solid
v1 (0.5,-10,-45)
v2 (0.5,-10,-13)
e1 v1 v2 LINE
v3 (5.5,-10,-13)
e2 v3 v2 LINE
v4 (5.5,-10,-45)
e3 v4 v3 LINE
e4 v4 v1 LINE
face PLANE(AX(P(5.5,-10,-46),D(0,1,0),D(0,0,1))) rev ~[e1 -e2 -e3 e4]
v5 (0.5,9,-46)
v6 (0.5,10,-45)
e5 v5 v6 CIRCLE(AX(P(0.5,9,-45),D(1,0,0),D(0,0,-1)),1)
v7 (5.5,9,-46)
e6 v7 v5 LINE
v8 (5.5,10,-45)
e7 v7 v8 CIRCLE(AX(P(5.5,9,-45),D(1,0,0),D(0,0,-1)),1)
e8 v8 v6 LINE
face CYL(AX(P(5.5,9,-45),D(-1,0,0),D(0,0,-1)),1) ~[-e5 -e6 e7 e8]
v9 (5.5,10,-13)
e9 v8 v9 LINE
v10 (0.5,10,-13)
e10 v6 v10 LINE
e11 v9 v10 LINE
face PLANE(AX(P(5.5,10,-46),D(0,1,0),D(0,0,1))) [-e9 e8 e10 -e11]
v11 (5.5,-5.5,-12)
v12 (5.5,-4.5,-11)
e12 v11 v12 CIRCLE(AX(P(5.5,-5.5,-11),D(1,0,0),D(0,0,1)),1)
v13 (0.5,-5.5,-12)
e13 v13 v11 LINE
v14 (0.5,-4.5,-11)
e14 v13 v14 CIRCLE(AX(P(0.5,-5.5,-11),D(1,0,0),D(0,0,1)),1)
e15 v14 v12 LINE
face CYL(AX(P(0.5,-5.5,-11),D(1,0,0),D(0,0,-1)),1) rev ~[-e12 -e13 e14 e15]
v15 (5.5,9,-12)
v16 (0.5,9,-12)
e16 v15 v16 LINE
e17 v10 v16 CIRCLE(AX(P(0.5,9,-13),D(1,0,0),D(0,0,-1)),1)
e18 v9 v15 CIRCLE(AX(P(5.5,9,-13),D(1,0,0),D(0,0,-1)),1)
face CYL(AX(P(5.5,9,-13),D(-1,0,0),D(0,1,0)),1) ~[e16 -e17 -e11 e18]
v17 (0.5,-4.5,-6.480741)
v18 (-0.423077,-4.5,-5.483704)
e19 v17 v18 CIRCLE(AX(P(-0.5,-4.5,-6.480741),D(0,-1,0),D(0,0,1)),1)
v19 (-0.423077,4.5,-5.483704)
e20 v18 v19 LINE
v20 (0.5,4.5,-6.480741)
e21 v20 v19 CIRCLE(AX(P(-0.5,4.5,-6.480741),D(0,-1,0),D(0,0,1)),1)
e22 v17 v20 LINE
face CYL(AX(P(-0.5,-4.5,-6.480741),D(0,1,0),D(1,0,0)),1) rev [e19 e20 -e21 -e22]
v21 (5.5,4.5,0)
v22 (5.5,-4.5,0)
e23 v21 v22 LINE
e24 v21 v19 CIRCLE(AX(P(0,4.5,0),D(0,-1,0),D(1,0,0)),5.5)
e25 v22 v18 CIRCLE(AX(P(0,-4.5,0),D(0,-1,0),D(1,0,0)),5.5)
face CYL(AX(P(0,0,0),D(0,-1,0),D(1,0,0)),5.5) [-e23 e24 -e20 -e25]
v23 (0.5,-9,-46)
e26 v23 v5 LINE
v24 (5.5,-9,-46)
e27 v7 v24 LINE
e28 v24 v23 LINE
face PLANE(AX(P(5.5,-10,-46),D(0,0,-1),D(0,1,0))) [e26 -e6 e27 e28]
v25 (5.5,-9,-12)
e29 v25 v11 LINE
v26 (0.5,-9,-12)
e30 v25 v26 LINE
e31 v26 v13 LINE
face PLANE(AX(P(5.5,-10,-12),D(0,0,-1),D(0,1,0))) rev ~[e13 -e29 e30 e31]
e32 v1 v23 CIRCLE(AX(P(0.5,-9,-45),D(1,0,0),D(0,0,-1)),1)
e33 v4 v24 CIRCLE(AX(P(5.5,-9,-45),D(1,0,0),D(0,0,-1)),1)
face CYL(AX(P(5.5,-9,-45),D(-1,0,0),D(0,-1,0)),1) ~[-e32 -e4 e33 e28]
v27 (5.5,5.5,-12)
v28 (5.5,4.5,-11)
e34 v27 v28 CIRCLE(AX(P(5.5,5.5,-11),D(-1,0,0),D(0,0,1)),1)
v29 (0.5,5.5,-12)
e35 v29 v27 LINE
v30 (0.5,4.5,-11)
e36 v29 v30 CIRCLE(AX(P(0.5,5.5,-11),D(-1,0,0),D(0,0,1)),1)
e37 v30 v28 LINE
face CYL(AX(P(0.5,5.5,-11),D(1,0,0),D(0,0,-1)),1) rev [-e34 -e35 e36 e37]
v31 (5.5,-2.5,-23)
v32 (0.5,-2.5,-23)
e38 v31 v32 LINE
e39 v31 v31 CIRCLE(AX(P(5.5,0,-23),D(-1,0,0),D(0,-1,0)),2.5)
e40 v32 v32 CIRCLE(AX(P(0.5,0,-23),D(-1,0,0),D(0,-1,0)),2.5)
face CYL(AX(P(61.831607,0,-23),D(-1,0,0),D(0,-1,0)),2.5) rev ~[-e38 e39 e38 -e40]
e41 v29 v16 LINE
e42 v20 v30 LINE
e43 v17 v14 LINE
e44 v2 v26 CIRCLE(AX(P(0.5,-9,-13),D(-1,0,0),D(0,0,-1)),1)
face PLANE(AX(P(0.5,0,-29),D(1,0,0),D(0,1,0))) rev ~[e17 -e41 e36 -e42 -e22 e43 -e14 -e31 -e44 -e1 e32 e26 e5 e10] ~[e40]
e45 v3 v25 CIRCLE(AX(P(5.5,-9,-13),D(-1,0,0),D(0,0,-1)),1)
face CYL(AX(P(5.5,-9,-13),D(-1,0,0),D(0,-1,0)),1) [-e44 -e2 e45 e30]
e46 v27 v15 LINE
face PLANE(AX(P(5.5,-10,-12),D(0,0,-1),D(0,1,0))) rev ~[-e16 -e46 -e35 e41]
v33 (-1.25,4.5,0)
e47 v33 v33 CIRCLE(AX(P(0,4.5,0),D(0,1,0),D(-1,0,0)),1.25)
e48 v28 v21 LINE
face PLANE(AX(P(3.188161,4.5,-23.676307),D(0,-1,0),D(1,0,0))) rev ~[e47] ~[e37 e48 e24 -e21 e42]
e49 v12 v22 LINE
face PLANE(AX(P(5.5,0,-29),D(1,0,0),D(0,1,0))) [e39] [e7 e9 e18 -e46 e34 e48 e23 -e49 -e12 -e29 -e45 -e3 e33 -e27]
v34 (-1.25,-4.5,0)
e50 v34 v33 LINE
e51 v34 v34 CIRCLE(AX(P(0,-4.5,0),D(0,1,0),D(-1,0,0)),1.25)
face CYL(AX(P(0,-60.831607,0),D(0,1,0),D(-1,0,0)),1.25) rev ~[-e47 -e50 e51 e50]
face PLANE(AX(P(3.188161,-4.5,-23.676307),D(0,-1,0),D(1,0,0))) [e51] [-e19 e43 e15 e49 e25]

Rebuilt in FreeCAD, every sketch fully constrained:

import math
import FreeCAD as App
import Part
import Sketcher
Q = App.Units.Quantity


def edges_at(feature, points):
    """Names of the edges that pass closest to the given points."""
    edges = feature.Shape.Edges
    near = lambda p: min(range(len(edges)), key=lambda i: edges[i].distToShape(Part.Vertex(*p))[0])
    return sorted({f"Edge{near(p) + 1}" for p in points})


def add_polygon(sketch, points):
    """Adds a closed chain of lines whose ends are joined by coincident constraints."""
    first, n = sketch.GeometryCount, len(points)
    for a, b in zip(points, points[1:] + points[:1]):
        sketch.addGeometry(Part.LineSegment(App.Vector(*a, 0), App.Vector(*b, 0)), False)
    for i in range(n):
        sketch.addConstraint(Sketcher.Constraint("Coincident", first + i, 2, first + (i + 1) % n, 1))

doc = App.newDocument("Part")
params = doc.addObject("Spreadsheet::Sheet", "Params")
for row, (alias, value) in enumerate([
    ("sketch1_diameter", "11 mm"),
    ("pad1_length", "9 mm"),
    ("sketch2_radius", "5.5 mm"),
    ("sketch2_width", "5 mm"),
    ("sketch2_height", "46 mm"),
    ("pad2_length", "9 mm"),
    ("sketch3_width", "20 mm"),
    ("sketch3_height", "34 mm"),
    ("sketch4_diameter", "2.5 mm"),
    ("hole_diameter", "2.5 mm"),
    ("sketch5_diameter", "5 mm"),
    ("hole2_diameter", "5 mm"),
    ("fillet_radius", "1 mm"),
], start=1):
    params.set(f"A{row}", alias)
    params.set(f"B{row}", "=" + value)
    params.setAlias(f"B{row}", alias)

body = doc.addObject("PartDesign::Body", "Body")

# Sketch on XZ plane
sketch1 = body.newObject("Sketcher::SketchObject", "Sketch")
sketch1.AttachmentSupport = (doc.getObject("XZ_Plane"), [""])
sketch1.MapMode = "FlatFace"
sketch1.addGeometry(Part.Circle(App.Vector(0, 0, 0), App.Vector(0, 0, 1), 6), False)
sketch1.addConstraint([
    Sketcher.Constraint("Coincident", 0, 3, -1, 1),
    Sketcher.Constraint("Diameter", 0, Q("11 mm")),
])
sketch1.setExpression("Constraints[1]", "Params.sketch1_diameter")
pad1 = body.newObject("PartDesign::Pad", "Pad")
pad1.Profile = sketch1
pad1.setExpression("Length", "Params.pad1_length")
pad1.Midplane = True

# Sketch on XZ plane
sketch2 = body.newObject("Sketcher::SketchObject", "Sketch001")
sketch2.AttachmentSupport = (doc.getObject("XZ_Plane"), [""])
sketch2.MapMode = "FlatFace"
sketch2.AttachmentOffset = App.Placement(App.Vector(0, 0, 4.5), App.Rotation())
sketch2.addGeometry([
    Part.LineSegment(App.Vector(6, -46, 0), App.Vector(6, 0, 0)),
    Part.ArcOfCircle(Part.Circle(App.Vector(0, 0, 0), App.Vector(0, 0, 1), 6), math.radians(-85), math.radians(0)),
    Part.LineSegment(App.Vector(0, -5, 0), App.Vector(0, -46, 0)),
    Part.LineSegment(App.Vector(0, -46, 0), App.Vector(6, -46, 0)),
], False)
sketch2.addConstraint([
    Sketcher.Constraint("Tangent", 0, 2, 1, 2),
    Sketcher.Constraint("Coincident", 1, 1, 2, 1),
    Sketcher.Constraint("Coincident", 2, 2, 3, 1),
    Sketcher.Constraint("Coincident", 3, 2, 0, 1),
    Sketcher.Constraint("Vertical", 0),
    Sketcher.Constraint("Vertical", 2),
    Sketcher.Constraint("Horizontal", 3),
    Sketcher.Constraint("Coincident", 1, 3, -1, 1),
    Sketcher.Constraint("Radius", 1, Q("5.5 mm")),
    Sketcher.Constraint("DistanceX", 3, 1, 3, 2, Q("5 mm")),
    Sketcher.Constraint("DistanceY", 0, 1, 0, 2, Q("46 mm")),
])
sketch2.setExpression("Constraints[8]", "Params.sketch2_radius")
sketch2.setExpression("Constraints[9]", "Params.sketch2_width")
sketch2.setExpression("Constraints[10]", "Params.sketch2_height")
pad2 = body.newObject("PartDesign::Pad", "Pad001")
pad2.Profile = sketch2
pad2.setExpression("Length", "Params.pad2_length")
pad2.Reversed = True

# Sketch on YZ plane
sketch3 = body.newObject("Sketcher::SketchObject", "Sketch002")
sketch3.AttachmentSupport = (doc.getObject("YZ_Plane"), [""])
sketch3.MapMode = "FlatFace"
sketch3.AttachmentOffset = App.Placement(App.Vector(0, 0, 5.5), App.Rotation())
add_polygon(sketch3, [(-10, -12), (-10, -46), (10, -46), (10, -12)])  # lines 0-3
sketch3.addConstraint([
    Sketcher.Constraint("Vertical", 0),
    Sketcher.Constraint("Horizontal", 1),
    Sketcher.Constraint("Vertical", 2),
    Sketcher.Constraint("Horizontal", 3),
    Sketcher.Constraint("DistanceX", 1, 1, 1, 2, Q("20 mm")),
    Sketcher.Constraint("DistanceY", 0, 2, 0, 1, Q("34 mm")),
    Sketcher.Constraint("DistanceX", 0, 2, -1, 1, Q("10 mm")),
    Sketcher.Constraint("DistanceY", 0, 2, -1, 1, Q("46 mm")),
])
sketch3.setExpression("Constraints[8]", "Params.sketch3_width")
sketch3.setExpression("Constraints[9]", "Params.sketch3_height")
pad3 = body.newObject("PartDesign::Pad", "Pad002")
pad3.Profile = sketch3
pad3.Type = "UpToLast"
pad3.Reversed = True

# Sketch on XZ plane
sketch4 = body.newObject("Sketcher::SketchObject", "Sketch003")
sketch4.AttachmentSupport = (doc.getObject("XZ_Plane"), [""])
sketch4.MapMode = "FlatFace"
sketch4.AttachmentOffset = App.Placement(App.Vector(0, 0, 4.5), App.Rotation())
sketch4.addGeometry(Part.Circle(App.Vector(0, 0, 0), App.Vector(0, 0, 1), 1.2), False)
sketch4.addConstraint([
    Sketcher.Constraint("Coincident", 0, 3, -1, 1),
    Sketcher.Constraint("Diameter", 0, Q("2.5 mm")),
])
sketch4.setExpression("Constraints[1]", "Params.sketch4_diameter")
doc.recompute()
hole = body.newObject("PartDesign::Hole", "Hole")
hole.Profile = sketch4
hole.ThreadType = "None"
hole.setExpression("Diameter", "Params.hole_diameter")
hole.DepthType = "ThroughAll"

# Sketch on YZ plane
sketch5 = body.newObject("Sketcher::SketchObject", "Sketch004")
sketch5.AttachmentSupport = (doc.getObject("YZ_Plane"), [""])
sketch5.MapMode = "FlatFace"
sketch5.AttachmentOffset = App.Placement(App.Vector(0, 0, 5.5), App.Rotation())
sketch5.addGeometry(Part.Circle(App.Vector(0, -23, 0), App.Vector(0, 0, 1), 2.5), False)
sketch5.addConstraint([
    Sketcher.Constraint("PointOnObject", 0, 3, -2),
    Sketcher.Constraint("Diameter", 0, Q("5 mm")),
    Sketcher.Constraint("DistanceY", 0, 3, -1, 1, Q("23 mm")),
])
sketch5.setExpression("Constraints[1]", "Params.sketch5_diameter")
doc.recompute()
hole2 = body.newObject("PartDesign::Hole", "Hole001")
hole2.Profile = sketch5
hole2.ThreadType = "None"
hole2.setExpression("Diameter", "Params.hole2_diameter")
hole2.DepthType = "ThroughAll"
doc.recompute()

fillet = body.newObject("PartDesign::Fillet", "Fillet")
fillet.Base = (hole2, edges_at(hole2, [
    (0.5, 0, -5.477),
    (3, -4.5, -12),
    (3, 4.5, -12),
    (3, 10, -12),
    (3, -10, -12),
    (3, -10, -46),
    (3, 10, -46),
]))
fillet.setExpression("Radius", "Params.fillet_radius")

doc.recompute()
